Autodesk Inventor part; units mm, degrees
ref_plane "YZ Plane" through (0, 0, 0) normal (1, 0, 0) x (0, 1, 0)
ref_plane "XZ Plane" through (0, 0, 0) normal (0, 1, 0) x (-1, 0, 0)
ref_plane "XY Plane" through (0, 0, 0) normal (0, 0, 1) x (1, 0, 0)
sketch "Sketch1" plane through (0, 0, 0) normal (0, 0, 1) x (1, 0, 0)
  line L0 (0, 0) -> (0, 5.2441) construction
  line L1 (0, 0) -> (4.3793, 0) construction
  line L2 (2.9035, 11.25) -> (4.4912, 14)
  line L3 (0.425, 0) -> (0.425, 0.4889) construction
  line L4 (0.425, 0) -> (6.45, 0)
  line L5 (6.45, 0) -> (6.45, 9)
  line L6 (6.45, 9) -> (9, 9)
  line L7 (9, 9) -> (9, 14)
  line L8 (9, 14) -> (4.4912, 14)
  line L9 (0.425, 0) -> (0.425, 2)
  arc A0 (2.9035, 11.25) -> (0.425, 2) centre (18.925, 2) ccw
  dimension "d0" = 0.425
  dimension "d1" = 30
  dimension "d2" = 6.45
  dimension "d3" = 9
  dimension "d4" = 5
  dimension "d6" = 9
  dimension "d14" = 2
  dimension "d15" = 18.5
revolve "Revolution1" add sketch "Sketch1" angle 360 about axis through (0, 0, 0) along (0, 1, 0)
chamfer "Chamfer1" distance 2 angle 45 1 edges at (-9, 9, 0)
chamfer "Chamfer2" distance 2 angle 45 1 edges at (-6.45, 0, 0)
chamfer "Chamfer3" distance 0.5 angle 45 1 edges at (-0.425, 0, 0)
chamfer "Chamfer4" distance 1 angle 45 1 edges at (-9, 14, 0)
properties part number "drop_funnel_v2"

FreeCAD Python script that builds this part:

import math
import FreeCAD as App
import Part
import Sketcher

V = App.Vector
Q = App.Units.Quantity


def edges_at(feature, points):
    """Names of the edges that pass closest to the given points."""
    edges = feature.Shape.Edges
    near = lambda p: min(range(len(edges)), key=lambda i: edges[i].distToShape(Part.Vertex(*p))[0])
    return sorted({f"Edge{near(p) + 1}" for p in points})

doc = App.newDocument("Part")
body = doc.addObject("PartDesign::Body", "Body")

# Sketch on XY plane
sketch1 = body.newObject("Sketcher::SketchObject", "Sketch")
sketch1.AttachmentSupport = (doc.getObject("XY_Plane"), [""])
sketch1.MapMode = "FlatFace"
sketch1.addGeometry(Part.LineSegment(V(4.5, 14, 0), V(2.9, 11.2, 0)), False)
sketch1.addGeometry(Part.ArcOfCircle(Part.Circle(V(18.9, 2, 0), V(0, 0, 1), 18.5), math.radians(150), math.radians(180)), False)
sketch1.addGeometry(Part.LineSegment(V(0.4, 2, 0), V(0.4, 0, 0)), False)
sketch1.addGeometry(Part.LineSegment(V(0.4, 0, 0), V(6.5, 0, 0)), False)
sketch1.addGeometry(Part.LineSegment(V(6.5, 0, 0), V(6.5, 9, 0)), False)
sketch1.addGeometry(Part.LineSegment(V(6.5, 9, 0), V(9, 9, 0)), False)
sketch1.addGeometry(Part.LineSegment(V(9, 9, 0), V(9, 14, 0)), False)
sketch1.addGeometry(Part.LineSegment(V(9, 14, 0), V(4.5, 14, 0)), False)
sketch1.addConstraint(Sketcher.Constraint("Tangent", 0, 2, 1, 1))
sketch1.addConstraint(Sketcher.Constraint("Tangent", 1, 2, 2, 1))
sketch1.addConstraint(Sketcher.Constraint("Coincident", 2, 2, 3, 1))
sketch1.addConstraint(Sketcher.Constraint("Coincident", 3, 2, 4, 1))
sketch1.addConstraint(Sketcher.Constraint("Coincident", 4, 2, 5, 1))
sketch1.addConstraint(Sketcher.Constraint("Coincident", 5, 2, 6, 1))
sketch1.addConstraint(Sketcher.Constraint("Coincident", 6, 2, 7, 1))
sketch1.addConstraint(Sketcher.Constraint("Coincident", 7, 2, 0, 1))
sketch1.addConstraint(Sketcher.Constraint("Vertical", 2))
sketch1.addConstraint(Sketcher.Constraint("Horizontal", 3))
sketch1.addConstraint(Sketcher.Constraint("Vertical", 4))
sketch1.addConstraint(Sketcher.Constraint("Horizontal", 5))
sketch1.addConstraint(Sketcher.Constraint("Vertical", 6))
sketch1.addConstraint(Sketcher.Constraint("Horizontal", 7))
sketch1.addConstraint(Sketcher.Constraint("PointOnObject", 2, 2, -1))
sketch1.addConstraint(Sketcher.Constraint("Radius", 1, Q("18.5 mm")))
sketch1.addConstraint(Sketcher.Constraint("DistanceY", 2, 2, 2, 1, Q("2 mm")))
sketch1.addConstraint(Sketcher.Constraint("DistanceY", 4, 1, 4, 2, Q("9 mm")))
sketch1.addConstraint(Sketcher.Constraint("DistanceY", 6, 1, 6, 2, Q("5 mm")))
sketch1.addConstraint(Sketcher.Constraint("DistanceX", -1, 1, 5, 2, Q("9 mm")))
sketch1.addConstraint(Sketcher.Constraint("DistanceX", -1, 1, 3, 2, Q("6.45 mm")))
sketch1.addConstraint(Sketcher.Constraint("Angle", 0, Q("-119.9998 deg")))
sketch1.addConstraint(Sketcher.Constraint("DistanceX", -1, 1, 1, 2, Q("0.425 mm")))
revolution = body.newObject("PartDesign::Revolution", "Revolution")
revolution.Profile = sketch1
revolution.ReferenceAxis = (sketch1, ["V_Axis"])
revolution.Angle = 360
doc.recompute()

chamfer = body.newObject("PartDesign::Chamfer", "Chamfer")
chamfer.Base = (revolution, edges_at(revolution, [(-9, 9, 0)]))
chamfer.Size = 2
doc.recompute()

chamfer2 = body.newObject("PartDesign::Chamfer", "Chamfer001")
chamfer2.Base = (chamfer, edges_at(chamfer, [(-6.45, 0, 0)]))
chamfer2.Size = 2
doc.recompute()

chamfer3 = body.newObject("PartDesign::Chamfer", "Chamfer002")
chamfer3.Base = (chamfer2, edges_at(chamfer2, [(-0.425, 0, 0)]))
chamfer3.Size = 0.5
doc.recompute()

chamfer4 = body.newObject("PartDesign::Chamfer", "Chamfer003")
chamfer4.Base = (chamfer3, edges_at(chamfer3, [(-9, 14, 0)]))
chamfer4.Size = 1

doc.recompute()
